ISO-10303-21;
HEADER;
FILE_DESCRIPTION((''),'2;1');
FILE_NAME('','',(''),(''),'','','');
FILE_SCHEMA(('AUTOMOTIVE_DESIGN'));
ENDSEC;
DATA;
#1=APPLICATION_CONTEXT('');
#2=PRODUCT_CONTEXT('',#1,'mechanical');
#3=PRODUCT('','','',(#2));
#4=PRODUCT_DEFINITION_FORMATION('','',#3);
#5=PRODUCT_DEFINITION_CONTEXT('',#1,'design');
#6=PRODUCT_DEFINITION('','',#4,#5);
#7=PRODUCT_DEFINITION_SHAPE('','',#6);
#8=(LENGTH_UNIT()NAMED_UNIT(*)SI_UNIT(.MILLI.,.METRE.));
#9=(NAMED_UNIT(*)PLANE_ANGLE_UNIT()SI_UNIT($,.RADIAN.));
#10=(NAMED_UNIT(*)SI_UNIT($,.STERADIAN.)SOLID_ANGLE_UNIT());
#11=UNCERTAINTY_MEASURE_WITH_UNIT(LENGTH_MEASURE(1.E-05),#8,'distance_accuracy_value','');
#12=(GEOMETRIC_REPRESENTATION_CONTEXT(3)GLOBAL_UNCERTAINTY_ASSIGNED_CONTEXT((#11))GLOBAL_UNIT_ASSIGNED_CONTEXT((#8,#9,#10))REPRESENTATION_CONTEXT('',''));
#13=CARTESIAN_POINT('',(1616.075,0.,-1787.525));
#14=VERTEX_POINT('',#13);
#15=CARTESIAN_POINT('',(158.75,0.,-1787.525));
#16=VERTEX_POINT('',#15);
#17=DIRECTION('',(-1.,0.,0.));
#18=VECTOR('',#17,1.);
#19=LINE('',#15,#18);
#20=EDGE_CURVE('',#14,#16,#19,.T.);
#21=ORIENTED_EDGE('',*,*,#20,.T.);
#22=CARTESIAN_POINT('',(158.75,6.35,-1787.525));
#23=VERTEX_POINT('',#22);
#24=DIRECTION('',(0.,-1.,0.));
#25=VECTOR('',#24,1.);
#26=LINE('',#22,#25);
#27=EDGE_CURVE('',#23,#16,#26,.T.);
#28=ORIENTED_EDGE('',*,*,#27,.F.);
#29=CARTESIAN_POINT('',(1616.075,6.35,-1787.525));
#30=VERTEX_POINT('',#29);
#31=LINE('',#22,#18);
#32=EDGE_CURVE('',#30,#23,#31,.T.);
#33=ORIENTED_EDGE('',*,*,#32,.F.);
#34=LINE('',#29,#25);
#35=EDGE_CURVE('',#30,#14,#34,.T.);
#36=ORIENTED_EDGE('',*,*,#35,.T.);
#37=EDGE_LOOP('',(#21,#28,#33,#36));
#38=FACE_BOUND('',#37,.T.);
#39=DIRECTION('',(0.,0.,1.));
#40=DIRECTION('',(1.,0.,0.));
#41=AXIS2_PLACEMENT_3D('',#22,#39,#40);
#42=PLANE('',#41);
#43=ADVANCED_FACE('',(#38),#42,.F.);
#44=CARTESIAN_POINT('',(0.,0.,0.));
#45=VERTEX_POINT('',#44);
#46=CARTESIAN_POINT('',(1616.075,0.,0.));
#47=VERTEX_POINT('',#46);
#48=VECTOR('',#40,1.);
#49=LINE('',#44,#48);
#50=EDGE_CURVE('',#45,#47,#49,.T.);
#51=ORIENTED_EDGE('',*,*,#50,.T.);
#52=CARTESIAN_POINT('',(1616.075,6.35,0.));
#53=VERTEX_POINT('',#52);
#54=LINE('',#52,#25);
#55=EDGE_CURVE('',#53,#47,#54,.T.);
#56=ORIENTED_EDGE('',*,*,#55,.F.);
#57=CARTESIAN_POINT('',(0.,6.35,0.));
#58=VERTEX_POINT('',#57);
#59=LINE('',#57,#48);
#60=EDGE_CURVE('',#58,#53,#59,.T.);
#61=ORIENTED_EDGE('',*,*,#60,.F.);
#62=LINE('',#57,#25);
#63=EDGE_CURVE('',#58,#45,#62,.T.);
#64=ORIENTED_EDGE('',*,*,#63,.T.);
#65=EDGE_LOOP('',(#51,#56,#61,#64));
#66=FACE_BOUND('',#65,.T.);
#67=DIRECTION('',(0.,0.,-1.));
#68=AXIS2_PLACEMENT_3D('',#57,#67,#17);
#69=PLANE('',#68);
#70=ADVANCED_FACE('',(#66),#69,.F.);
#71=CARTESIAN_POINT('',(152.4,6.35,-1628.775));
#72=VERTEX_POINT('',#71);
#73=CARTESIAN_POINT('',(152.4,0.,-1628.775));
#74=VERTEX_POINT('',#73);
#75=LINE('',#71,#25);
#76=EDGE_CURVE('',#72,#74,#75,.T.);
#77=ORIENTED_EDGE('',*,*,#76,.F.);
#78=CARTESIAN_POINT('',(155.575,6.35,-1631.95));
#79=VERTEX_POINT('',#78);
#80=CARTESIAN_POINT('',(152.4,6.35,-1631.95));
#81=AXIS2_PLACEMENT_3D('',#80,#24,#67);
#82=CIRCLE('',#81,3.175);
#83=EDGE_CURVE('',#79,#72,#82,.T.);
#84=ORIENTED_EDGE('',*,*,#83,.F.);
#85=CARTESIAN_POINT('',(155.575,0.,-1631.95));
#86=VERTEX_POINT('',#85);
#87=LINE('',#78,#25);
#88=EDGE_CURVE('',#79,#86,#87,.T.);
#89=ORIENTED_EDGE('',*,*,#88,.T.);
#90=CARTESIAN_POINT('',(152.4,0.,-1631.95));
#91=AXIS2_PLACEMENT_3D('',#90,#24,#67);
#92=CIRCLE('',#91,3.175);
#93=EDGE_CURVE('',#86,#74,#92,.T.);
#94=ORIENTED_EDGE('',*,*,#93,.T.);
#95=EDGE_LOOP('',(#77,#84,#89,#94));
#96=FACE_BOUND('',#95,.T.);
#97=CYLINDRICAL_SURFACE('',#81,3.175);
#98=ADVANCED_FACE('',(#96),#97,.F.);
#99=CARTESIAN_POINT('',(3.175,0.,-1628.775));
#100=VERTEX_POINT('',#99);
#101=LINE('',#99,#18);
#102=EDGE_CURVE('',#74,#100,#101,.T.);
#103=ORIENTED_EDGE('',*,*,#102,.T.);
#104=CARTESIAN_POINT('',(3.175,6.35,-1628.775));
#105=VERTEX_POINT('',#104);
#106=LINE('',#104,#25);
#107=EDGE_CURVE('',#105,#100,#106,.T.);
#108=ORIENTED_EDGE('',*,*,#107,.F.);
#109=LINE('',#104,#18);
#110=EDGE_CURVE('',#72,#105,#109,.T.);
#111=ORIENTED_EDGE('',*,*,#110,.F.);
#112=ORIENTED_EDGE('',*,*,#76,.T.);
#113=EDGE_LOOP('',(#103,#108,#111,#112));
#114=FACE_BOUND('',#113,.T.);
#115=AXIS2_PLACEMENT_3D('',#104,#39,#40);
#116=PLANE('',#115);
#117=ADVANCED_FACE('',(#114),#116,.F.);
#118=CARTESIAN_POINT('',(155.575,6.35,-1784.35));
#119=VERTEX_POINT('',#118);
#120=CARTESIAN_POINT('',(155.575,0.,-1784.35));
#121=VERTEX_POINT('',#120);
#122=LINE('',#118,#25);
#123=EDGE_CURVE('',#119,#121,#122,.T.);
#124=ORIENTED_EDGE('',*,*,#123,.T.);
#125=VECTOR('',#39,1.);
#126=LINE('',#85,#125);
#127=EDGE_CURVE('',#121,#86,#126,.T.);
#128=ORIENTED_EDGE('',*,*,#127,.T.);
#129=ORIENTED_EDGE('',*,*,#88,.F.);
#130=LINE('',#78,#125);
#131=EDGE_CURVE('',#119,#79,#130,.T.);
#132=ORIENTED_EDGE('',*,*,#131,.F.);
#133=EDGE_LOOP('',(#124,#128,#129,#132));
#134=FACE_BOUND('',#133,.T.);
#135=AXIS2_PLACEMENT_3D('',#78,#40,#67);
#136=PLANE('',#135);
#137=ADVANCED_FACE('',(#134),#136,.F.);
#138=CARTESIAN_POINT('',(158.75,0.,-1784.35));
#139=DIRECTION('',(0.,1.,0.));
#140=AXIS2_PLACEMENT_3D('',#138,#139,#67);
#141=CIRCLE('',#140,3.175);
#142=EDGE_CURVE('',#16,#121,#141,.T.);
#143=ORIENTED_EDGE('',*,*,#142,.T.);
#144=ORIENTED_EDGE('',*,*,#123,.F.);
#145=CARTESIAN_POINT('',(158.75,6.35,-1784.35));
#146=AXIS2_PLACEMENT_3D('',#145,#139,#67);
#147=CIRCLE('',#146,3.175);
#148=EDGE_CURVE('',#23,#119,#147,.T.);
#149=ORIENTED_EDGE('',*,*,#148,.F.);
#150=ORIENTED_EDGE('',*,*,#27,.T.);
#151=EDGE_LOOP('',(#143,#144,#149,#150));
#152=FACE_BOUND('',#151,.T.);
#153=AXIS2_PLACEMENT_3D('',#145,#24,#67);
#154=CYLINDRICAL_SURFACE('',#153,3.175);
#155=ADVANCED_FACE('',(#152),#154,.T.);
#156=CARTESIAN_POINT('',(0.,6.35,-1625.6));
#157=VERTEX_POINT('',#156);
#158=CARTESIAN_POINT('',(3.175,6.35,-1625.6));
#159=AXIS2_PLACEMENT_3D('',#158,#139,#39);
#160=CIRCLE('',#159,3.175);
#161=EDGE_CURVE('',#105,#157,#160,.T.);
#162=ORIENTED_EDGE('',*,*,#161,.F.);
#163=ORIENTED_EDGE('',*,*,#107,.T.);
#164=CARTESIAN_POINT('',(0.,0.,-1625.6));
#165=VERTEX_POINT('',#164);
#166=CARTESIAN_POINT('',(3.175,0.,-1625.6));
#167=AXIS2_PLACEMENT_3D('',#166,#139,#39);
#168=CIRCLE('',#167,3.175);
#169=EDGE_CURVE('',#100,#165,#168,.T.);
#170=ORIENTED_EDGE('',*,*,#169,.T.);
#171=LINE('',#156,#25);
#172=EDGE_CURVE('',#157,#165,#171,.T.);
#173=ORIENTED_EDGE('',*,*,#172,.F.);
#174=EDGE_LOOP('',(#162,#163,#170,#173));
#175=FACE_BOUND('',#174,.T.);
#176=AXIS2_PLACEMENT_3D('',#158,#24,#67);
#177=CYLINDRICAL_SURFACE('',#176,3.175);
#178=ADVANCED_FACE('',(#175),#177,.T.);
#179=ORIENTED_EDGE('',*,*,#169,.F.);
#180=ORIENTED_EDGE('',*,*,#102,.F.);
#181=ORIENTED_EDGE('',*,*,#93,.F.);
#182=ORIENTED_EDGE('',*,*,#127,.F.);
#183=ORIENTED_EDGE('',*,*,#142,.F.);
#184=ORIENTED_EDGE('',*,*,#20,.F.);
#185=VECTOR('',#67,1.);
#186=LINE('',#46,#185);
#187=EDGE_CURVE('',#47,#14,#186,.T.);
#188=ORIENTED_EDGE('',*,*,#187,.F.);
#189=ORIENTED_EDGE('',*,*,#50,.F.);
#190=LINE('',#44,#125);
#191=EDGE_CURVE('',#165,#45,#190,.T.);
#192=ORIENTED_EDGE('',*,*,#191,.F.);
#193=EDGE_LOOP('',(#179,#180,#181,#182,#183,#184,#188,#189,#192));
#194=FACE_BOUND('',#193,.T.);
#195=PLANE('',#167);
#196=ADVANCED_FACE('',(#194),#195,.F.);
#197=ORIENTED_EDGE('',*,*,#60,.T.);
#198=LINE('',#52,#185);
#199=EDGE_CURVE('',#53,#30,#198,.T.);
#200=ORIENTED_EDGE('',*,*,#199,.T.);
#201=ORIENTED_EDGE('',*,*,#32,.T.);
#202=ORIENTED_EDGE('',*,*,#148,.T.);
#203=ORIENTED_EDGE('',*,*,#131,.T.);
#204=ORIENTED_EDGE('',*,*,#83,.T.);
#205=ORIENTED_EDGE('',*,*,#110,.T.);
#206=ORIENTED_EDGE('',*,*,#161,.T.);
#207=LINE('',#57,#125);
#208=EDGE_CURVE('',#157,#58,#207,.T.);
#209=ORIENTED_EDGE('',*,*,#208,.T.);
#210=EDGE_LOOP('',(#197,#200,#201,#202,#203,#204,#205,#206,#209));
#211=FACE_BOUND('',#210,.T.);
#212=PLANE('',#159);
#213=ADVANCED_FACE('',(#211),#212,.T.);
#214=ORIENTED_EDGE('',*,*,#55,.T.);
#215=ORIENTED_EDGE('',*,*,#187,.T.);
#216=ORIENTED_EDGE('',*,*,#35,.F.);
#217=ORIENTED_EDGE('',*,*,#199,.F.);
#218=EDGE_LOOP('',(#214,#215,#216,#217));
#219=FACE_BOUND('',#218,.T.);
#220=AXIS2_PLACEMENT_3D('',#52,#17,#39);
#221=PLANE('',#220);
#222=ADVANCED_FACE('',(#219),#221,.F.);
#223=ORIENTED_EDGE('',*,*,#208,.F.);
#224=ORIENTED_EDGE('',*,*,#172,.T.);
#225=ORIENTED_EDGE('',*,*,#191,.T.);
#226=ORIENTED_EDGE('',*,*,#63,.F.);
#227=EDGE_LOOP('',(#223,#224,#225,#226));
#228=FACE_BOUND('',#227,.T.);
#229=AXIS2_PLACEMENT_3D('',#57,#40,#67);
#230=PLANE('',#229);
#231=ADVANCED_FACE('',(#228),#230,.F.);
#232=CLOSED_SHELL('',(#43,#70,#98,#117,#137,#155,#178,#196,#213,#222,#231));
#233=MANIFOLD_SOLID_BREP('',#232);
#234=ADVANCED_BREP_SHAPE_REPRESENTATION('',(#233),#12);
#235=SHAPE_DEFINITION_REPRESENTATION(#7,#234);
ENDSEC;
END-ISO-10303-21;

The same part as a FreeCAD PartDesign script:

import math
import FreeCAD as App
import Part
import Sketcher
Q = App.Units.Quantity

doc = App.newDocument("Part")
body = doc.addObject("PartDesign::Body", "Body")

# Sketch on XZ plane
sketch1 = doc.addObject("Sketcher::SketchObject", "Sketch")
body.addObject(sketch1)
sketch1.AttachmentSupport = (doc.XZ_Plane, [""])
sketch1.MapMode = "FlatFace"
sketch1.addGeometry([
    Part.LineSegment(App.Vector(0, 0, 0), App.Vector(1616.1, 0, 0)),  # 0
    Part.LineSegment(App.Vector(1616.1, 0, 0), App.Vector(1616.1, -1787.5, 0)),  # 1
    Part.LineSegment(App.Vector(1616.1, -1787.5, 0), App.Vector(158.8, -1787.5, 0)),  # 2
    Part.ArcOfCircle(Part.Circle(App.Vector(158.8, -1784.3, 0), App.Vector(0, 0, 1), 3.2), math.radians(-180), math.radians(-90)),  # 3
    Part.LineSegment(App.Vector(155.6, -1784.3, 0), App.Vector(155.6, -1632, 0)),  # 4
    Part.ArcOfCircle(Part.Circle(App.Vector(152.4, -1632, 0), App.Vector(0, 0, 1), 3.2), math.radians(0), math.radians(90)),  # 5
    Part.LineSegment(App.Vector(152.4, -1628.8, 0), App.Vector(3.2, -1628.8, 0)),  # 6
    Part.ArcOfCircle(Part.Circle(App.Vector(3.2, -1625.6, 0), App.Vector(0, 0, 1), 3.2), math.radians(-180), math.radians(-90)),  # 7
    Part.LineSegment(App.Vector(0, -1625.6, 0), App.Vector(0, 0, 0)),  # 8
], False)
sketch1.addConstraint([
    Sketcher.Constraint("Coincident", 0, 2, 1, 1),
    Sketcher.Constraint("Coincident", 1, 2, 2, 1),
    Sketcher.Constraint("Tangent", 2, 2, 3, 2),
    Sketcher.Constraint("Tangent", 3, 1, 4, 1),
    Sketcher.Constraint("Tangent", 4, 2, 5, 1),
    Sketcher.Constraint("Tangent", 5, 2, 6, 1),
    Sketcher.Constraint("Tangent", 6, 2, 7, 2),
    Sketcher.Constraint("Tangent", 7, 1, 8, 1),
    Sketcher.Constraint("Coincident", 8, 2, 0, 1),
    Sketcher.Constraint("Horizontal", 0),
    Sketcher.Constraint("Vertical", 1),
    Sketcher.Constraint("Horizontal", 2),
    Sketcher.Constraint("Vertical", 4),
    Sketcher.Constraint("Horizontal", 6),
    Sketcher.Constraint("Vertical", 8),
    Sketcher.Constraint("Coincident", 8, 2, -1, 1),
    Sketcher.Constraint("Equal", 3, 5),
    Sketcher.Constraint("Equal", 5, 7),
    Sketcher.Constraint("DistanceY", 4, 1, 4, 2, Q("6 in")),
    Sketcher.Constraint("DistanceY", 8, 1, 8, 2, Q("64 in")),
    Sketcher.Constraint("DistanceX", -1, 1, 5, 3, Q("6 in")),
    Sketcher.Constraint("Radius", 3, Q("0.125 in")),
    Sketcher.Constraint("DistanceX", 7, 3, 0, 2, Q("63.5 in")),
])
pad1 = doc.addObject("PartDesign::Pad", "Pad")
body.addObject(pad1)
pad1.Profile = sketch1
pad1.Length = Q("0.25 in")
pad1.Reversed = True

doc.recompute()
